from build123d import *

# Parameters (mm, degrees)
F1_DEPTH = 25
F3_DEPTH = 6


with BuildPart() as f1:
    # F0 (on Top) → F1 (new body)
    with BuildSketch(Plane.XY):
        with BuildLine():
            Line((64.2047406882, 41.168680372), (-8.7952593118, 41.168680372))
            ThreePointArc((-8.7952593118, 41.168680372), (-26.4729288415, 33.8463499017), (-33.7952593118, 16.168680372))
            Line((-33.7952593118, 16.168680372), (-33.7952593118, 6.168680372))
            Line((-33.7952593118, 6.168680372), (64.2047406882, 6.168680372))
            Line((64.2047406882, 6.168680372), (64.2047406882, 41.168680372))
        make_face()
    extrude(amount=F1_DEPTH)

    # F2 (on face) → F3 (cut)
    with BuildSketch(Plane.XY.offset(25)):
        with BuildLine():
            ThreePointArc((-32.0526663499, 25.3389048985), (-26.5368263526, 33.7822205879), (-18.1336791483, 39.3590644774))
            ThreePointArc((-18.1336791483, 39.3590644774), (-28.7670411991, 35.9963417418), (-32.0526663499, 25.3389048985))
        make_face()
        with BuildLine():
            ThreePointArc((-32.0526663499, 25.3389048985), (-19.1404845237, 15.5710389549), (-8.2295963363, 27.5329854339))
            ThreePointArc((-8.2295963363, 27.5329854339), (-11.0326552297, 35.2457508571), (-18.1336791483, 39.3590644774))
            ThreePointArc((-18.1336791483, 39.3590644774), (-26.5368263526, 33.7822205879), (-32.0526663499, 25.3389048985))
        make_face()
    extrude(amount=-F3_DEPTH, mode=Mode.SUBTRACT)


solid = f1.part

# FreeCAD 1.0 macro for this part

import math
import FreeCAD as App
import Part
import Sketcher

V = App.Vector

doc = App.newDocument("Part")
body = doc.addObject("PartDesign::Body", "Body")

# Sketch on XY plane
sketch1 = doc.addObject("Sketcher::SketchObject", "Sketch")
body.addObject(sketch1)
sketch1.AttachmentSupport = (doc.XY_Plane, [""])
sketch1.MapMode = "FlatFace"
sketch1.addGeometry(Part.LineSegment(V(64, 41, 0), V(-9, 41, 0)), False)
sketch1.addGeometry(Part.ArcOfCircle(Part.Circle(V(-9, 16, 0), V(0, 0, 1), 25), math.radians(90), math.radians(180)), False)
sketch1.addGeometry(Part.LineSegment(V(-34, 16, 0), V(-34, 6, 0)), False)
sketch1.addGeometry(Part.LineSegment(V(-34, 6, 0), V(64, 6, 0)), False)
sketch1.addGeometry(Part.LineSegment(V(64, 6, 0), V(64, 41, 0)), False)
sketch1.addConstraint(Sketcher.Constraint("Tangent", 0, 2, 1, 1))
sketch1.addConstraint(Sketcher.Constraint("Tangent", 1, 2, 2, 1))
sketch1.addConstraint(Sketcher.Constraint("Coincident", 2, 2, 3, 1))
sketch1.addConstraint(Sketcher.Constraint("Coincident", 3, 2, 4, 1))
sketch1.addConstraint(Sketcher.Constraint("Coincident", 4, 2, 0, 1))
sketch1.addConstraint(Sketcher.Constraint("Horizontal", 0))
sketch1.addConstraint(Sketcher.Constraint("Vertical", 2))
sketch1.addConstraint(Sketcher.Constraint("Horizontal", 3))
sketch1.addConstraint(Sketcher.Constraint("Vertical", 4))
sketch1.addConstraint(Sketcher.Constraint("Radius", 1, 25.0))
sketch1.addConstraint(Sketcher.Constraint("DistanceX", 0, 2, 0, 1, 73.0))
sketch1.addConstraint(Sketcher.Constraint("DistanceY", 2, 2, 2, 1, 10.0))
sketch1.addConstraint(Sketcher.Constraint("DistanceX", 1, 3, -1, 1, 8.795259))
sketch1.addConstraint(Sketcher.Constraint("DistanceY", -1, 1, 1, 3, 16.16868))
pad1 = doc.addObject("PartDesign::Pad", "Pad")
body.addObject(pad1)
pad1.Profile = sketch1
pad1.Length = 25

# Sketch on XY plane
sketch2 = doc.addObject("Sketcher::SketchObject", "Sketch001")
body.addObject(sketch2)
sketch2.AttachmentSupport = (doc.XY_Plane, [""])
sketch2.MapMode = "FlatFace"
sketch2.AttachmentOffset = App.Placement(V(0, 0, 25), App.Rotation())
sketch2.addGeometry(Part.ArcOfCircle(Part.Circle(V(-20, 28, 0), V(0, 0, 1), 12), math.radians(80), math.radians(191)), False)
sketch2.addGeometry(Part.ArcOfCircle(Part.Circle(V(-20, 28, 0), V(0, 0, 1), 12), math.radians(-169), math.radians(80)), False)
sketch2.addConstraint(Sketcher.Constraint("Tangent", 0, 1, 1, 2))
sketch2.addConstraint(Sketcher.Constraint("Coincident", 1, 1, 0, 2))
sketch2.addConstraint(Sketcher.Constraint("Radius", 0, 12.012571))
sketch2.addConstraint(Sketcher.Constraint("DistanceX", 1, 1, 0, 3, 11.810499))
sketch2.addConstraint(Sketcher.Constraint("DistanceX", 0, 1, -1, 1, 18.133679))
sketch2.addConstraint(Sketcher.Constraint("DistanceX", 0, 3, 0, 1, 2.108488))
sketch2.addConstraint(Sketcher.Constraint("DistanceY", -1, 1, 0, 3, 27.532985))
pocket1 = doc.addObject("PartDesign::Pocket", "Pocket")
body.addObject(pocket1)
pocket1.Profile = sketch2
pocket1.Length = 6

doc.recompute()
